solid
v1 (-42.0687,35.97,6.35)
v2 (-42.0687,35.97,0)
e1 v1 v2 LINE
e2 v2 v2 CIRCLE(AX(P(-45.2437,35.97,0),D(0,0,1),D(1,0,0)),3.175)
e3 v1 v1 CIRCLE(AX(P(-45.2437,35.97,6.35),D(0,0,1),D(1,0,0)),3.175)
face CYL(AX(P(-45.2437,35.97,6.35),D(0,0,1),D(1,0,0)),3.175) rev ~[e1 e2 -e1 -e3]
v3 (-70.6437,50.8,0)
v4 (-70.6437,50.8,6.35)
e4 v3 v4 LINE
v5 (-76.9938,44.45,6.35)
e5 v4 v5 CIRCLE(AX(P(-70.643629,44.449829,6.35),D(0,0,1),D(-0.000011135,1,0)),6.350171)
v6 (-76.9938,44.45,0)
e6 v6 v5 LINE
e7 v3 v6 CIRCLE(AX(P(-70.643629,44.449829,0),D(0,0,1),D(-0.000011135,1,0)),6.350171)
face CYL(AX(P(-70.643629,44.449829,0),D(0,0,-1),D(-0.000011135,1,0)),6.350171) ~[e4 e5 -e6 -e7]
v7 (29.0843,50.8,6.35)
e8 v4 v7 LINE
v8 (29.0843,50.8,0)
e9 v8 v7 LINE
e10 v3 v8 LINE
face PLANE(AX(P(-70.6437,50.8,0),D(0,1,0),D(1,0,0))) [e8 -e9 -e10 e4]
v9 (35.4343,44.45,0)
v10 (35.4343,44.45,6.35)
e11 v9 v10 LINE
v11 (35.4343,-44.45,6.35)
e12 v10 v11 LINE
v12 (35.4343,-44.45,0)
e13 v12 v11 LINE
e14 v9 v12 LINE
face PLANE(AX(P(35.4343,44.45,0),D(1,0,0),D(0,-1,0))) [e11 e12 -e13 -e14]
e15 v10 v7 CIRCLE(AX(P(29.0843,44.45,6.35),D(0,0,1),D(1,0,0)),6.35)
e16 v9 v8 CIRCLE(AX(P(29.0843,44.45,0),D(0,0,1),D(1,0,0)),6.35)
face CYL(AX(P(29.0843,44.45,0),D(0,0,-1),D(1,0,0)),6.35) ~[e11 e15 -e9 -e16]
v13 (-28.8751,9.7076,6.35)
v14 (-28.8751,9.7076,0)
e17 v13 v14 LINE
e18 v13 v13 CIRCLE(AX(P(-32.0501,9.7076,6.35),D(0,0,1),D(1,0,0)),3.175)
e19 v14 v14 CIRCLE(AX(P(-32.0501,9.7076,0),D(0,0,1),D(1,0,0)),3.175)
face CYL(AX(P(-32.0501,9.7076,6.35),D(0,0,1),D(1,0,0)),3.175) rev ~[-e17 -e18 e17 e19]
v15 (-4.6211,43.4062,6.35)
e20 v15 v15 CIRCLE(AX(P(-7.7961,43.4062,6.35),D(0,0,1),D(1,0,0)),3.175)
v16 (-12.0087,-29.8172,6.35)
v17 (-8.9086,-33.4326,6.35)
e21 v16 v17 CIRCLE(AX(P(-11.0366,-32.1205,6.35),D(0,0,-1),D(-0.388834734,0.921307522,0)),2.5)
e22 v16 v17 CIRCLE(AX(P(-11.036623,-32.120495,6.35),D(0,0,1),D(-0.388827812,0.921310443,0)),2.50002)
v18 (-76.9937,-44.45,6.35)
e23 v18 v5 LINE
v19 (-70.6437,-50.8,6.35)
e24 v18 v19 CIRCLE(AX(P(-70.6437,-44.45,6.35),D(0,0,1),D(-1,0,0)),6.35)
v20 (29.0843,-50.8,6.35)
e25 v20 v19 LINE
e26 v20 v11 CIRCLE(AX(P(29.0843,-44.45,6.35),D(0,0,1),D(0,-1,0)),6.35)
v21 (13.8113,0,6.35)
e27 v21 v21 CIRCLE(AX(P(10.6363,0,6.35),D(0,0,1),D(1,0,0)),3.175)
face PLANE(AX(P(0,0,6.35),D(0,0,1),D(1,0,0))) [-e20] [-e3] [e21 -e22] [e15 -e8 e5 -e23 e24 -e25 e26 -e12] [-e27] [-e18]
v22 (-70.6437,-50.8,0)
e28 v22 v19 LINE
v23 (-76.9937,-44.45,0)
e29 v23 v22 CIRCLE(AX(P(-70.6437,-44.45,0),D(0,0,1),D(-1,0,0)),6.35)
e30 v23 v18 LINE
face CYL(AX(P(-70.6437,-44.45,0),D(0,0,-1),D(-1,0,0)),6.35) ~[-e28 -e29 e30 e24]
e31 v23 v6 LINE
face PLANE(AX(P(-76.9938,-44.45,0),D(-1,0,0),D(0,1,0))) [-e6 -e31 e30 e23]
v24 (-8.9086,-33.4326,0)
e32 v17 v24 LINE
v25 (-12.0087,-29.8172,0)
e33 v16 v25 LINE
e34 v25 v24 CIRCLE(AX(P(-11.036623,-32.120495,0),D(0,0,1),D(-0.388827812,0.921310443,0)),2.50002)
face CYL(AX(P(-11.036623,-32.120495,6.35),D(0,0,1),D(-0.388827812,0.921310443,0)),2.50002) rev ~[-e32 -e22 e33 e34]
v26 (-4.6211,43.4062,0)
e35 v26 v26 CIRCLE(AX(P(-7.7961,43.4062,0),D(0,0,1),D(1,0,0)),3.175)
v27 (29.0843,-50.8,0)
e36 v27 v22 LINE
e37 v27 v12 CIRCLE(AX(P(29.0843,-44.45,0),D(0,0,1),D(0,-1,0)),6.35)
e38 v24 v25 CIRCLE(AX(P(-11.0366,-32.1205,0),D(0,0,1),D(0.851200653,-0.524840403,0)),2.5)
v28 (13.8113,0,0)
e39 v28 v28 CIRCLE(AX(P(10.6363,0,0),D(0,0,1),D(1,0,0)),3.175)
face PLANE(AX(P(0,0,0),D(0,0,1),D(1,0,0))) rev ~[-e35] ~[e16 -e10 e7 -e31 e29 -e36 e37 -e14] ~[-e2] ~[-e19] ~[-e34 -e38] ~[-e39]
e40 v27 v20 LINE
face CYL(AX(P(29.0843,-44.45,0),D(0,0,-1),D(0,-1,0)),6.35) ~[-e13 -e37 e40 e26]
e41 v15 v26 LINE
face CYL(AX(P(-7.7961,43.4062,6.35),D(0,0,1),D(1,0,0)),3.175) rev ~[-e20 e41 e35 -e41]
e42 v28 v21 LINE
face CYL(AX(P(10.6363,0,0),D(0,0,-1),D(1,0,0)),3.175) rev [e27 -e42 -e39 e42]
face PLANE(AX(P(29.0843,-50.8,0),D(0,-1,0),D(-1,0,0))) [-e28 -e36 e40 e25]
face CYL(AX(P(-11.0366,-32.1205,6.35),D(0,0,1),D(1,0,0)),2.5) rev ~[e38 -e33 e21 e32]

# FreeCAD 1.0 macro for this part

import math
import FreeCAD as App
import Part
import Sketcher
from FreeCAD import Vector
Q = App.Units.Quantity

doc = App.newDocument("Part")
body = doc.addObject("PartDesign::Body", "Body")

# Sketch on XY plane
sketch1 = body.newObject("Sketcher::SketchObject", "Sketch")
sketch1.AttachmentSupport = (doc.getObject("XY_Plane"), [""])
sketch1.MapMode = "FlatFace"
sketch1.addGeometry(Part.LineSegment(Vector(-77, 44.5, 0), Vector(-77, -44.5, 0)), False)
sketch1.addGeometry(Part.ArcOfCircle(Part.Circle(Vector(-70.6, -44.5, 0), Vector(0, 0, 1), 6.4), math.radians(180), math.radians(270)), False)
sketch1.addGeometry(Part.LineSegment(Vector(-70.6, -50.8, 0), Vector(29.1, -50.8, 0)), False)
sketch1.addGeometry(Part.ArcOfCircle(Part.Circle(Vector(29.1, -44.5, 0), Vector(0, 0, 1), 6.3), math.radians(-90), math.radians(0)), False)
sketch1.addGeometry(Part.LineSegment(Vector(35.4, -44.5, 0), Vector(35.4, 44.5, 0)), False)
sketch1.addGeometry(Part.ArcOfCircle(Part.Circle(Vector(29.1, 44.5, 0), Vector(0, 0, 1), 6.4), math.radians(0), math.radians(90)), False)
sketch1.addGeometry(Part.LineSegment(Vector(29.1, 50.8, 0), Vector(-70.6, 50.8, 0)), False)
sketch1.addGeometry(Part.ArcOfCircle(Part.Circle(Vector(-70.6, 44.5, 0), Vector(0, 0, 1), 6.3), math.radians(90), math.radians(180)), False)
sketch1.addGeometry(Part.Circle(Vector(10.6, 0, 0), Vector(0, 0, 1), 3.2), False)
sketch1.addGeometry(Part.Circle(Vector(-45.2, 36, 0), Vector(0, 0, 1), 1.3), False)
sketch1.addConstraint(Sketcher.Constraint("Tangent", 0, 2, 1, 1))
sketch1.addConstraint(Sketcher.Constraint("Tangent", 1, 2, 2, 1))
sketch1.addConstraint(Sketcher.Constraint("Tangent", 2, 2, 3, 1))
sketch1.addConstraint(Sketcher.Constraint("Tangent", 3, 2, 4, 1))
sketch1.addConstraint(Sketcher.Constraint("Tangent", 4, 2, 5, 1))
sketch1.addConstraint(Sketcher.Constraint("Tangent", 5, 2, 6, 1))
sketch1.addConstraint(Sketcher.Constraint("Tangent", 6, 2, 7, 1))
sketch1.addConstraint(Sketcher.Constraint("Tangent", 7, 2, 0, 1))
sketch1.addConstraint(Sketcher.Constraint("Vertical", 0))
sketch1.addConstraint(Sketcher.Constraint("Horizontal", 2))
sketch1.addConstraint(Sketcher.Constraint("Vertical", 4))
sketch1.addConstraint(Sketcher.Constraint("Horizontal", 6))
sketch1.addConstraint(Sketcher.Constraint("Equal", 1, 3))
sketch1.addConstraint(Sketcher.Constraint("Equal", 3, 5))
sketch1.addConstraint(Sketcher.Constraint("Equal", 5, 7))
sketch1.addConstraint(Sketcher.Constraint("PointOnObject", 8, 3, -1))
sketch1.addConstraint(Sketcher.Constraint("Diameter", 8, Q("0.25 in")))
sketch1.addConstraint(Sketcher.Constraint("Radius", 1, Q("0.25 in")))
sketch1.addConstraint(Sketcher.Constraint("Diameter", 9, Q("0.1 in")))
sketch1.addConstraint(Sketcher.Constraint("DistanceY", 0, 2, 0, 1, Q("3.5 in")))
sketch1.addConstraint(Sketcher.Constraint("DistanceY", 1, 2, -1, 1, Q("2 in")))
sketch1.addConstraint(Sketcher.Constraint("DistanceX", 7, 3, 9, 3, Q("1 in")))
sketch1.addConstraint(Sketcher.Constraint("DistanceX", 1, 3, 8, 3, Q("3.2 in")))
sketch1.addConstraint(Sketcher.Constraint("DistanceX", 2, 1, 2, 2, Q("3.9263 in")))
sketch1.addConstraint(Sketcher.Constraint("DistanceX", 1, 3, -1, 1, Q("2.781248 in")))
sketch1.addConstraint(Sketcher.Constraint("DistanceY", -1, 1, 9, 3, Q("35.97 mm")))
pad1 = body.newObject("PartDesign::Pad", "Pad")
pad1.Profile = sketch1
pad1.Length = Q("0.25 in")

# Sketch on XY plane
sketch2 = body.newObject("Sketcher::SketchObject", "Sketch001")
sketch2.AttachmentSupport = (doc.getObject("XY_Plane"), [""])
sketch2.MapMode = "FlatFace"
sketch2.AttachmentOffset = App.Placement(Vector(0, 0, 0.25 * 25.4), App.Rotation())
sketch2.addGeometry(Part.Circle(Vector(-7.8, 43.4, 0), Vector(0, 0, 1), 3.2), False)
sketch2.addGeometry(Part.Circle(Vector(-32.1, 9.7, 0), Vector(0, 0, 1), 3.2), False)
sketch2.addGeometry(Part.Circle(Vector(-45.2, 36, 0), Vector(0, 0, 1), 3.2), False)
sketch2.addGeometry(Part.Circle(Vector(-45.2, 36, 0), Vector(0, 0, 1), 1.3), False)
sketch2.addConstraint(Sketcher.Constraint("Coincident", 3, 3, 2, 3))
sketch2.addConstraint(Sketcher.Constraint("Equal", 0, 1))
sketch2.addConstraint(Sketcher.Constraint("Equal", 1, 2))
sketch2.addConstraint(Sketcher.Constraint("Diameter", 3, Q("0.1 in")))
sketch2.addConstraint(Sketcher.Constraint("Diameter", 0, Q("0.25 in")))
sketch2.addConstraint(Sketcher.Constraint("DistanceX", 2, 3, -1, 1, Q("1.781248 in")))
sketch2.addConstraint(Sketcher.Constraint("DistanceY", -1, 1, 0, 3, Q("1.7089 in")))
sketch2.addConstraint(Sketcher.Constraint("DistanceY", -1, 1, 1, 3, Q("0.3822 in")))
sketch2.addConstraint(Sketcher.Constraint("DistanceX", 0, 3, -1, 1, Q("7.796 mm")))
sketch2.addConstraint(Sketcher.Constraint("DistanceX", 1, 3, -1, 1, Q("1.261811 in")))
sketch2.addConstraint(Sketcher.Constraint("DistanceY", -1, 1, 2, 3, Q("35.97 mm")))
pocket1 = body.newObject("PartDesign::Pocket", "Pocket")
pocket1.Profile = sketch2
pocket1.Type = "ThroughAll"

# Sketch on XY plane
sketch3 = body.newObject("Sketcher::SketchObject", "Sketch002")
sketch3.AttachmentSupport = (doc.getObject("XY_Plane"), [""])
sketch3.MapMode = "FlatFace"
sketch3.AttachmentOffset = App.Placement(Vector(0, 0, 0.25 * 25.4), App.Rotation())
sketch3.addGeometry(Part.ArcOfCircle(Part.Circle(Vector(-11, -32.1, 0), Vector(0, 0, 1), 2.5), math.radians(-32), math.radians(113)), False)
sketch3.addGeometry(Part.ArcOfCircle(Part.Circle(Vector(-11, -32.1, 0), Vector(0, 0, 1), 2.5), math.radians(113), math.radians(328)), False)
sketch3.addConstraint(Sketcher.Constraint("Tangent", 0, 1, 1, 2))
sketch3.addConstraint(Sketcher.Constraint("Coincident", 1, 1, 0, 2))
sketch3.addConstraint(Sketcher.Constraint("Radius", 0, Q("2.5 mm")))
sketch3.addConstraint(Sketcher.Constraint("DistanceX", 0, 3, -1, 1, Q("0.4345 in")))
sketch3.addConstraint(Sketcher.Constraint("DistanceY", 1, 1, -1, 1, Q("1.1739 in")))
sketch3.addConstraint(Sketcher.Constraint("DistanceY", 0, 3, -1, 1, Q("32.1205 mm")))
sketch3.addConstraint(Sketcher.Constraint("DistanceX", 0, 1, -1, 1, Q("8.9086 mm")))
pocket2 = body.newObject("PartDesign::Pocket", "Pocket001")
pocket2.Profile = sketch3
pocket2.Type = "ThroughAll"

doc.recompute()
